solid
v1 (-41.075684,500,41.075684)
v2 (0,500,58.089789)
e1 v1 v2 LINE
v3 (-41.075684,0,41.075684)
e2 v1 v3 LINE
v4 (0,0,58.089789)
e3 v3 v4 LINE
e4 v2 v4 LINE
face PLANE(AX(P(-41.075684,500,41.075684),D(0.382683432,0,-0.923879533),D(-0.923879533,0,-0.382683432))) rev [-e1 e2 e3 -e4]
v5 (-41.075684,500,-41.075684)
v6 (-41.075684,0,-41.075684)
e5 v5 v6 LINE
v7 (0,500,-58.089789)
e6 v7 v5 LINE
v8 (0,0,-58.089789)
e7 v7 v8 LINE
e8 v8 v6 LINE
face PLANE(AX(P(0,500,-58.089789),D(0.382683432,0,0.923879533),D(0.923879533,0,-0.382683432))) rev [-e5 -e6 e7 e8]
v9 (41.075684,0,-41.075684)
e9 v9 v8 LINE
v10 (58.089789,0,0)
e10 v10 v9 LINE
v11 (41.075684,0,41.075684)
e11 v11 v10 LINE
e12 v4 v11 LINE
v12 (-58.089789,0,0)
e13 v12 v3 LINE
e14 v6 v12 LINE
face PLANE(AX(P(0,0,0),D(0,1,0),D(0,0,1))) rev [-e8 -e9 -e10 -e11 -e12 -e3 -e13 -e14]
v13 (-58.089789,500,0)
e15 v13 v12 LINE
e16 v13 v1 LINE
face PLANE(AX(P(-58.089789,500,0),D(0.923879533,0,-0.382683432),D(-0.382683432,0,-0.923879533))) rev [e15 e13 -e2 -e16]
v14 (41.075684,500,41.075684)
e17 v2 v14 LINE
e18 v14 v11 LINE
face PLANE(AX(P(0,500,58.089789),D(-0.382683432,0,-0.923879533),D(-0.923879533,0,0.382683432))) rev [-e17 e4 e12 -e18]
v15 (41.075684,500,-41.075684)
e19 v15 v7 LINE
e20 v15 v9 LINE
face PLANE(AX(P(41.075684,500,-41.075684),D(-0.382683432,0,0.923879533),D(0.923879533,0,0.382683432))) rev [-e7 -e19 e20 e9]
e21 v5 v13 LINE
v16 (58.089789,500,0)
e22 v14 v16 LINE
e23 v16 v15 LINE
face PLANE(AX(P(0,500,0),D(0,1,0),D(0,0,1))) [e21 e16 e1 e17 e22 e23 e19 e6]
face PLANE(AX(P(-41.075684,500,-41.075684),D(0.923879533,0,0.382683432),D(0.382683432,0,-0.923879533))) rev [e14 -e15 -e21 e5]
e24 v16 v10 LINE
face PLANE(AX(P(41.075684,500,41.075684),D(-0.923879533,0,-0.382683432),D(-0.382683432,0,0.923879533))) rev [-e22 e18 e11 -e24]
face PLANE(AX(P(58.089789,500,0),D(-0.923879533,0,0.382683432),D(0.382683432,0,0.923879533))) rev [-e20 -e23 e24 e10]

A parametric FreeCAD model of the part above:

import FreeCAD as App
import Part
import Sketcher
from FreeCAD import Vector
Q = App.Units.Quantity

doc = App.newDocument("Part")
body = doc.addObject("PartDesign::Body", "Body")

# Sketch on XZ plane
sketch1 = doc.addObject("Sketcher::SketchObject", "Sketch")
body.addObject(sketch1)
sketch1.AttachmentSupport = (doc.XZ_Plane, [""])
sketch1.MapMode = "FlatFace"
sketch1.addGeometry(Part.LineSegment(Vector(0, -58.089789, 0), Vector(-41.075684, -41.075684, 0)), False)
sketch1.addGeometry(Part.LineSegment(Vector(-41.075684, -41.075684, 0), Vector(-58.089789, 0, 0)), False)
sketch1.addGeometry(Part.LineSegment(Vector(-58.089789, 0, 0), Vector(-41.075684, 41.075684, 0)), False)
sketch1.addGeometry(Part.LineSegment(Vector(-41.075684, 41.075684, 0), Vector(0, 58.089789, 0)), False)
sketch1.addGeometry(Part.LineSegment(Vector(0, 58.089789, 0), Vector(41.075684, 41.075684, 0)), False)
sketch1.addGeometry(Part.LineSegment(Vector(41.075684, 41.075684, 0), Vector(58.089789, 0, 0)), False)
sketch1.addGeometry(Part.LineSegment(Vector(58.089789, 0, 0), Vector(41.075684, -41.075684, 0)), False)
sketch1.addGeometry(Part.LineSegment(Vector(41.075684, -41.075684, 0), Vector(0, -58.089789, 0)), False)
sketch1.addConstraint(Sketcher.Constraint("Coincident", 0, 2, 1, 1))
sketch1.addConstraint(Sketcher.Constraint("Coincident", 1, 2, 2, 1))
sketch1.addConstraint(Sketcher.Constraint("Coincident", 2, 2, 3, 1))
sketch1.addConstraint(Sketcher.Constraint("Coincident", 3, 2, 4, 1))
sketch1.addConstraint(Sketcher.Constraint("Coincident", 4, 2, 5, 1))
sketch1.addConstraint(Sketcher.Constraint("Coincident", 5, 2, 6, 1))
sketch1.addConstraint(Sketcher.Constraint("Coincident", 6, 2, 7, 1))
sketch1.addConstraint(Sketcher.Constraint("Coincident", 7, 2, 0, 1))
sketch1.addConstraint(Sketcher.Constraint("Symmetric", 0, 2, 4, 2, -1, 1))
sketch1.addConstraint(Sketcher.Constraint("Symmetric", 1, 2, 5, 2, -1, 1))
sketch1.addConstraint(Sketcher.Constraint("Symmetric", 2, 2, 6, 2, -1, 1))
sketch1.addConstraint(Sketcher.Constraint("Symmetric", 3, 2, 7, 2, -1, 1))
sketch1.addConstraint(Sketcher.Constraint("Symmetric", 2, 2, 4, 2, -2))
sketch1.addConstraint(Sketcher.Constraint("PointOnObject", 1, 2, -1))
sketch1.addConstraint(Sketcher.Constraint("PointOnObject", 3, 2, -2))
sketch1.addConstraint(Sketcher.Constraint("Perpendicular", 0, 2))
sketch1.addConstraint(Sketcher.Constraint("Equal", 0, 1))
sketch1.addConstraint(Sketcher.Constraint("Angle", 0, Q("157.5 deg")))
sketch1.addConstraint(Sketcher.Constraint("Distance", 0, Q("44.46 mm")))
pad1 = doc.addObject("PartDesign::Pad", "Pad")
body.addObject(pad1)
pad1.Profile = sketch1
pad1.Length = 500
pad1.Reversed = True

doc.recompute()
